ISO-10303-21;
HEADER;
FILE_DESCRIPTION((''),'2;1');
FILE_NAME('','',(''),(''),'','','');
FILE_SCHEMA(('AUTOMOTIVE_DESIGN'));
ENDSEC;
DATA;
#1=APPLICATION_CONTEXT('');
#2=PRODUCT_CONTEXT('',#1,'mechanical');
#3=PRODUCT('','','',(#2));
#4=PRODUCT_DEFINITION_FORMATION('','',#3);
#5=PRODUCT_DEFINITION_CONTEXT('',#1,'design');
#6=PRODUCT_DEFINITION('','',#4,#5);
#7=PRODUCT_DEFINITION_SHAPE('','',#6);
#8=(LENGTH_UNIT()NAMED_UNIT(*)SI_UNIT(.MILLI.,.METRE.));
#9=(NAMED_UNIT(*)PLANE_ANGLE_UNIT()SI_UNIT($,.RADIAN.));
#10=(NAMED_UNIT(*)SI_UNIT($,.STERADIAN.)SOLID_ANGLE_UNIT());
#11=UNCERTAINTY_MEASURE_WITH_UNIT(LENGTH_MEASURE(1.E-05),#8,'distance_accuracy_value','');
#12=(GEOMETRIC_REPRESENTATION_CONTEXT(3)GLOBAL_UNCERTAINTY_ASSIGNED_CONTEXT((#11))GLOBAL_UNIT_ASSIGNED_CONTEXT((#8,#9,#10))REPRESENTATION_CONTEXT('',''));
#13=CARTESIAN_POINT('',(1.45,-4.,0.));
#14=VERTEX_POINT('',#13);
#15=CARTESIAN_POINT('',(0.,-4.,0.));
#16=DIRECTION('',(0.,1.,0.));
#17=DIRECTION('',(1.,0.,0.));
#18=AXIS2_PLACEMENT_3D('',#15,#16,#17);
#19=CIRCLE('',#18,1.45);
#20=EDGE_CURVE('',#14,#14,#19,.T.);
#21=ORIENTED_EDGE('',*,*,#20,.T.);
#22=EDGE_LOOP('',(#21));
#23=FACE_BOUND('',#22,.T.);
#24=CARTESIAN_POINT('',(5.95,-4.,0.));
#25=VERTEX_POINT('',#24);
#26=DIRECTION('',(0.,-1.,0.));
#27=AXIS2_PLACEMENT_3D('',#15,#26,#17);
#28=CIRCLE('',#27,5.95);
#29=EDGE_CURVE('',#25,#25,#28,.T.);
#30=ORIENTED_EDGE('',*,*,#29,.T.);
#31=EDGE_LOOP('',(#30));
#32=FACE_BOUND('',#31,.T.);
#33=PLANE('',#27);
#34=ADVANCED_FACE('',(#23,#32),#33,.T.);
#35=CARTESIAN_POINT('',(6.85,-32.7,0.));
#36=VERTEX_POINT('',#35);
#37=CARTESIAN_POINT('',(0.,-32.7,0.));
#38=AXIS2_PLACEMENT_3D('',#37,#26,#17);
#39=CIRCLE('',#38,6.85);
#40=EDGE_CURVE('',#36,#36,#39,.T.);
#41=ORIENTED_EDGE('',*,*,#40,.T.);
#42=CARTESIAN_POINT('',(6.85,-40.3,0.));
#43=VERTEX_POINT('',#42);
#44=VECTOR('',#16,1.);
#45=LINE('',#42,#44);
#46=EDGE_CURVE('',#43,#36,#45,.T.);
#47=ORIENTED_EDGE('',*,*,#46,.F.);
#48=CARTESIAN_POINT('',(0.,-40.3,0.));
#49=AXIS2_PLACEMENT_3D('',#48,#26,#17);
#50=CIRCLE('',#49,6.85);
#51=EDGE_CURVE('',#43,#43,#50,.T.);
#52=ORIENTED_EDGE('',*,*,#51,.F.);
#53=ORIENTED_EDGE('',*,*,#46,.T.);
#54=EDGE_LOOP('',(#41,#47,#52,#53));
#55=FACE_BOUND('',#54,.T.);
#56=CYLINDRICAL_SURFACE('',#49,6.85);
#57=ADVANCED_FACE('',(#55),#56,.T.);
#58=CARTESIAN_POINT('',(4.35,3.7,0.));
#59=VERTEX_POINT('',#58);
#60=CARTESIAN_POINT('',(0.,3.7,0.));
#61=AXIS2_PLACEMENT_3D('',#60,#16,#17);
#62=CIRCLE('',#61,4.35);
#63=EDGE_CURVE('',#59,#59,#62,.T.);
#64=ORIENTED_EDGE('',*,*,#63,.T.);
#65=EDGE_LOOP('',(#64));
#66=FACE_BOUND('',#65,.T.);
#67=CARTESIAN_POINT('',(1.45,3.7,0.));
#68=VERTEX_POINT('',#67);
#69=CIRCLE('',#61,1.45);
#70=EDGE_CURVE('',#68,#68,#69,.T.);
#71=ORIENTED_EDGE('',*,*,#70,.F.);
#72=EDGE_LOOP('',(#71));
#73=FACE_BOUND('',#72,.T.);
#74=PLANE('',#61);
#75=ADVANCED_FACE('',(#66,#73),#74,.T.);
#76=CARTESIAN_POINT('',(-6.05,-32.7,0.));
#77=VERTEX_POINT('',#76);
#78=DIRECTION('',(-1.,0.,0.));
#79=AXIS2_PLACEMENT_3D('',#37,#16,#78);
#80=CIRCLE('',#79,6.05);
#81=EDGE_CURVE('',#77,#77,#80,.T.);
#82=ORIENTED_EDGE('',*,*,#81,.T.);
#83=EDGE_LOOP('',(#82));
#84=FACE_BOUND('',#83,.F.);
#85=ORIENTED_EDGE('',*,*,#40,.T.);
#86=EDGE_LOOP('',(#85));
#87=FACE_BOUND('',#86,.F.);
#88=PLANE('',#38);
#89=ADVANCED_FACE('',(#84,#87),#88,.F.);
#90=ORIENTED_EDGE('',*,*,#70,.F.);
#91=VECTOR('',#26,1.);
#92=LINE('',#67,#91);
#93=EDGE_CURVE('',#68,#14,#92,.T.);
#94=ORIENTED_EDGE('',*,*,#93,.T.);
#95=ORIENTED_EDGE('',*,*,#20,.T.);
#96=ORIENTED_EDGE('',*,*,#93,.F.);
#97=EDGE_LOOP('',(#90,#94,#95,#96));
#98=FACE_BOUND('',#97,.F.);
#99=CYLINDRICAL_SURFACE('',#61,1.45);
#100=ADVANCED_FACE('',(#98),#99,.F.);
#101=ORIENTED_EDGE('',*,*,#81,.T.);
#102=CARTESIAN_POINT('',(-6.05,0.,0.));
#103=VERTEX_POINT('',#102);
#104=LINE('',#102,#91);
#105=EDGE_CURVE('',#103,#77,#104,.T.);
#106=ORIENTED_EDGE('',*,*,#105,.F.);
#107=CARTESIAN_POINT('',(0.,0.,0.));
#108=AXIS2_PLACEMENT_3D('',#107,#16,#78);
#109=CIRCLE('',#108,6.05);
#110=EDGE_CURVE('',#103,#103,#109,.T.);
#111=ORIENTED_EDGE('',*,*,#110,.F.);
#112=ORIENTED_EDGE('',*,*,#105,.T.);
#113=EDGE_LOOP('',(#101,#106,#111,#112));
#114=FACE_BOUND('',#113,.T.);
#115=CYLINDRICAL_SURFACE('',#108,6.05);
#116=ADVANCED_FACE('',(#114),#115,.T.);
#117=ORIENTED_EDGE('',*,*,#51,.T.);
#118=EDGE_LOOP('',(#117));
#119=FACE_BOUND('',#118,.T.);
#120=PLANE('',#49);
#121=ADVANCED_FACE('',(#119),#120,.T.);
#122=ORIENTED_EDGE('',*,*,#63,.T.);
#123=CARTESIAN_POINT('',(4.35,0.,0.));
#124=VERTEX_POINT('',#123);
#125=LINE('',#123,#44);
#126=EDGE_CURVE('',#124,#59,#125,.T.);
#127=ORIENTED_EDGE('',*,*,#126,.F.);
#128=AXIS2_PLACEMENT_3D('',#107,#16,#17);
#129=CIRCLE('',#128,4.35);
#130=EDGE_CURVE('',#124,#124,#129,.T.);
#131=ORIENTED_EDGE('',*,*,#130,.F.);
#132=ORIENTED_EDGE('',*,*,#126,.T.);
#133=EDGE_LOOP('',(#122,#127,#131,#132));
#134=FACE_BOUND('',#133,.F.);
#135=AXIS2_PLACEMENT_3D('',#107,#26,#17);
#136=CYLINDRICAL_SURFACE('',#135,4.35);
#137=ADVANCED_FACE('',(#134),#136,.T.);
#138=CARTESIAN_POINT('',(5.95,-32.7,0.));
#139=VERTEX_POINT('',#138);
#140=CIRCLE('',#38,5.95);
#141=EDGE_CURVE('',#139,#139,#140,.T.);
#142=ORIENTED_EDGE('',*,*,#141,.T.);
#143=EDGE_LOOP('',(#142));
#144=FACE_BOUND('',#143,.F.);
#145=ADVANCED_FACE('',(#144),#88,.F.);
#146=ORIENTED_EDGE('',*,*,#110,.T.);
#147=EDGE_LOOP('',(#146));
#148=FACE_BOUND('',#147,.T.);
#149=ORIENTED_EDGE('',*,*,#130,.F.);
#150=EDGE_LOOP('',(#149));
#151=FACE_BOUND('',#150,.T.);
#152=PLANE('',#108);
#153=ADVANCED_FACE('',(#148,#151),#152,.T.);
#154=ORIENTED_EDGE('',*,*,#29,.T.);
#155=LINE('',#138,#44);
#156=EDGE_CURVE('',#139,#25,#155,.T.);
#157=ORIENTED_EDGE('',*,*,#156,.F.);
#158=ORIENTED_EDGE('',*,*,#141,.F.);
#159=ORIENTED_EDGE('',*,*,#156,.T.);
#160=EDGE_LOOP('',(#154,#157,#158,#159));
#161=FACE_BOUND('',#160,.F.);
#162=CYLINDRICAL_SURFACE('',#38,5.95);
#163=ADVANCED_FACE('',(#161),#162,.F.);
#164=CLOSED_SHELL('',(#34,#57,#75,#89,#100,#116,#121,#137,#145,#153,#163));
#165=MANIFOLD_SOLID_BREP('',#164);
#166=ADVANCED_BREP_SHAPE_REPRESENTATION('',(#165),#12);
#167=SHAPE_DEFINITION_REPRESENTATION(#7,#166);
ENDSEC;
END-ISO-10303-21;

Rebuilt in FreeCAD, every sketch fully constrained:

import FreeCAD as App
import Part
import Sketcher
from FreeCAD import Vector

doc = App.newDocument("Part")
body = doc.addObject("PartDesign::Body", "Body")

sketch1 = body.newObject("Sketcher::SketchObject", "Sketch")
sketch1.AttachmentSupport = (doc.getObject("XZ_Plane"), [""])
sketch1.MapMode = "FlatFace"
sketch1.addGeometry(Part.Circle(Vector(0, 0, 0), Vector(0, 0, 1), 6), False)
sketch1.addConstraint([
    Sketcher.Constraint("Coincident", 0, 3, -1, 1),
    Sketcher.Constraint("Diameter", 0, 12.1),
])
pad1 = body.newObject("PartDesign::Pad", "Pad")
pad1.Profile = sketch1
pad1.Length = 32.7

sketch2 = body.newObject("Sketcher::SketchObject", "Sketch001")
sketch2.AttachmentSupport = (doc.getObject("XZ_Plane"), [""])
sketch2.MapMode = "FlatFace"
sketch2.addGeometry(Part.Circle(Vector(0, 0, 0), Vector(0, 0, 1), 4.3), False)
sketch2.addConstraint([
    Sketcher.Constraint("Coincident", 0, 3, -1, 1),
    Sketcher.Constraint("Diameter", 0, 8.7),
])
pad2 = body.newObject("PartDesign::Pad", "Pad001")
pad2.Profile = sketch2
pad2.Length = 3.7
pad2.Reversed = True

sketch3 = body.newObject("Sketcher::SketchObject", "Sketch002")
sketch3.AttachmentSupport = (doc.getObject("XZ_Plane"), [""])
sketch3.MapMode = "FlatFace"
sketch3.AttachmentOffset = App.Placement(Vector(0, 0, 32.7), App.Rotation())
sketch3.addGeometry(Part.Circle(Vector(0, 0, 0), Vector(0, 0, 1), 6), False)
sketch3.addConstraint([
    Sketcher.Constraint("Coincident", 0, 3, -1, 1),
    Sketcher.Constraint("Diameter", 0, 11.9),
])
pocket1 = body.newObject("PartDesign::Pocket", "Pocket")
pocket1.Profile = sketch3
pocket1.Length = 28.7

sketch4 = body.newObject("Sketcher::SketchObject", "Sketch003")
sketch4.AttachmentSupport = (doc.getObject("XZ_Plane"), [""])
sketch4.MapMode = "FlatFace"
sketch4.AttachmentOffset = App.Placement(Vector(0, 0, 32.7), App.Rotation())
sketch4.addGeometry(Part.Circle(Vector(0, 0, 0), Vector(0, 0, 1), 7), False)
sketch4.addConstraint([
    Sketcher.Constraint("Coincident", 0, 3, -1, 1),
    Sketcher.Constraint("Diameter", 0, 13.8),
])
pad3 = body.newObject("PartDesign::Pad", "Pad002")
pad3.Profile = sketch4
pad3.Length = 7.6

sketch5 = body.newObject("Sketcher::SketchObject", "Sketch004")
sketch5.AttachmentSupport = (doc.getObject("XZ_Plane"), [""])
sketch5.MapMode = "FlatFace"
sketch5.AttachmentOffset = App.Placement(Vector(0, 0, -3.7), App.Rotation())
sketch5.addGeometry(Part.Circle(Vector(0, 0, 0), Vector(0, 0, 1), 1.4), False)
sketch5.addConstraint([
    Sketcher.Constraint("Coincident", 0, 3, -1, 1),
    Sketcher.Constraint("Diameter", 0, 2.9),
])
pocket2 = body.newObject("PartDesign::Pocket", "Pocket001")
pocket2.Profile = sketch5
pocket2.Length = 20
pocket2.Reversed = True

sketch6 = body.newObject("Sketcher::SketchObject", "Sketch005")
sketch6.AttachmentSupport = (doc.getObject("XZ_Plane"), [""])
sketch6.MapMode = "FlatFace"
sketch6.AttachmentOffset = App.Placement(Vector(0, 0, 40.3), App.Rotation())
sketch6.addGeometry([
    Part.Circle(Vector(0, 0, 0), Vector(0, 0, 1), 7),
    Part.Circle(Vector(0, 0, 0), Vector(0, 0, 1), 7),
], False)
sketch6.addConstraint([
    Sketcher.Constraint("Coincident", 0, 3, -1, 1),
    Sketcher.Constraint("Coincident", 1, 3, -1, 1),
    Sketcher.Constraint("Diameter", 0, 13.8),
    Sketcher.Constraint("Diameter", 1, 13.7),
])
pocket3 = body.newObject("PartDesign::Pocket", "Pocket002")
pocket3.Profile = sketch6
pocket3.Length = 20

doc.recompute()
